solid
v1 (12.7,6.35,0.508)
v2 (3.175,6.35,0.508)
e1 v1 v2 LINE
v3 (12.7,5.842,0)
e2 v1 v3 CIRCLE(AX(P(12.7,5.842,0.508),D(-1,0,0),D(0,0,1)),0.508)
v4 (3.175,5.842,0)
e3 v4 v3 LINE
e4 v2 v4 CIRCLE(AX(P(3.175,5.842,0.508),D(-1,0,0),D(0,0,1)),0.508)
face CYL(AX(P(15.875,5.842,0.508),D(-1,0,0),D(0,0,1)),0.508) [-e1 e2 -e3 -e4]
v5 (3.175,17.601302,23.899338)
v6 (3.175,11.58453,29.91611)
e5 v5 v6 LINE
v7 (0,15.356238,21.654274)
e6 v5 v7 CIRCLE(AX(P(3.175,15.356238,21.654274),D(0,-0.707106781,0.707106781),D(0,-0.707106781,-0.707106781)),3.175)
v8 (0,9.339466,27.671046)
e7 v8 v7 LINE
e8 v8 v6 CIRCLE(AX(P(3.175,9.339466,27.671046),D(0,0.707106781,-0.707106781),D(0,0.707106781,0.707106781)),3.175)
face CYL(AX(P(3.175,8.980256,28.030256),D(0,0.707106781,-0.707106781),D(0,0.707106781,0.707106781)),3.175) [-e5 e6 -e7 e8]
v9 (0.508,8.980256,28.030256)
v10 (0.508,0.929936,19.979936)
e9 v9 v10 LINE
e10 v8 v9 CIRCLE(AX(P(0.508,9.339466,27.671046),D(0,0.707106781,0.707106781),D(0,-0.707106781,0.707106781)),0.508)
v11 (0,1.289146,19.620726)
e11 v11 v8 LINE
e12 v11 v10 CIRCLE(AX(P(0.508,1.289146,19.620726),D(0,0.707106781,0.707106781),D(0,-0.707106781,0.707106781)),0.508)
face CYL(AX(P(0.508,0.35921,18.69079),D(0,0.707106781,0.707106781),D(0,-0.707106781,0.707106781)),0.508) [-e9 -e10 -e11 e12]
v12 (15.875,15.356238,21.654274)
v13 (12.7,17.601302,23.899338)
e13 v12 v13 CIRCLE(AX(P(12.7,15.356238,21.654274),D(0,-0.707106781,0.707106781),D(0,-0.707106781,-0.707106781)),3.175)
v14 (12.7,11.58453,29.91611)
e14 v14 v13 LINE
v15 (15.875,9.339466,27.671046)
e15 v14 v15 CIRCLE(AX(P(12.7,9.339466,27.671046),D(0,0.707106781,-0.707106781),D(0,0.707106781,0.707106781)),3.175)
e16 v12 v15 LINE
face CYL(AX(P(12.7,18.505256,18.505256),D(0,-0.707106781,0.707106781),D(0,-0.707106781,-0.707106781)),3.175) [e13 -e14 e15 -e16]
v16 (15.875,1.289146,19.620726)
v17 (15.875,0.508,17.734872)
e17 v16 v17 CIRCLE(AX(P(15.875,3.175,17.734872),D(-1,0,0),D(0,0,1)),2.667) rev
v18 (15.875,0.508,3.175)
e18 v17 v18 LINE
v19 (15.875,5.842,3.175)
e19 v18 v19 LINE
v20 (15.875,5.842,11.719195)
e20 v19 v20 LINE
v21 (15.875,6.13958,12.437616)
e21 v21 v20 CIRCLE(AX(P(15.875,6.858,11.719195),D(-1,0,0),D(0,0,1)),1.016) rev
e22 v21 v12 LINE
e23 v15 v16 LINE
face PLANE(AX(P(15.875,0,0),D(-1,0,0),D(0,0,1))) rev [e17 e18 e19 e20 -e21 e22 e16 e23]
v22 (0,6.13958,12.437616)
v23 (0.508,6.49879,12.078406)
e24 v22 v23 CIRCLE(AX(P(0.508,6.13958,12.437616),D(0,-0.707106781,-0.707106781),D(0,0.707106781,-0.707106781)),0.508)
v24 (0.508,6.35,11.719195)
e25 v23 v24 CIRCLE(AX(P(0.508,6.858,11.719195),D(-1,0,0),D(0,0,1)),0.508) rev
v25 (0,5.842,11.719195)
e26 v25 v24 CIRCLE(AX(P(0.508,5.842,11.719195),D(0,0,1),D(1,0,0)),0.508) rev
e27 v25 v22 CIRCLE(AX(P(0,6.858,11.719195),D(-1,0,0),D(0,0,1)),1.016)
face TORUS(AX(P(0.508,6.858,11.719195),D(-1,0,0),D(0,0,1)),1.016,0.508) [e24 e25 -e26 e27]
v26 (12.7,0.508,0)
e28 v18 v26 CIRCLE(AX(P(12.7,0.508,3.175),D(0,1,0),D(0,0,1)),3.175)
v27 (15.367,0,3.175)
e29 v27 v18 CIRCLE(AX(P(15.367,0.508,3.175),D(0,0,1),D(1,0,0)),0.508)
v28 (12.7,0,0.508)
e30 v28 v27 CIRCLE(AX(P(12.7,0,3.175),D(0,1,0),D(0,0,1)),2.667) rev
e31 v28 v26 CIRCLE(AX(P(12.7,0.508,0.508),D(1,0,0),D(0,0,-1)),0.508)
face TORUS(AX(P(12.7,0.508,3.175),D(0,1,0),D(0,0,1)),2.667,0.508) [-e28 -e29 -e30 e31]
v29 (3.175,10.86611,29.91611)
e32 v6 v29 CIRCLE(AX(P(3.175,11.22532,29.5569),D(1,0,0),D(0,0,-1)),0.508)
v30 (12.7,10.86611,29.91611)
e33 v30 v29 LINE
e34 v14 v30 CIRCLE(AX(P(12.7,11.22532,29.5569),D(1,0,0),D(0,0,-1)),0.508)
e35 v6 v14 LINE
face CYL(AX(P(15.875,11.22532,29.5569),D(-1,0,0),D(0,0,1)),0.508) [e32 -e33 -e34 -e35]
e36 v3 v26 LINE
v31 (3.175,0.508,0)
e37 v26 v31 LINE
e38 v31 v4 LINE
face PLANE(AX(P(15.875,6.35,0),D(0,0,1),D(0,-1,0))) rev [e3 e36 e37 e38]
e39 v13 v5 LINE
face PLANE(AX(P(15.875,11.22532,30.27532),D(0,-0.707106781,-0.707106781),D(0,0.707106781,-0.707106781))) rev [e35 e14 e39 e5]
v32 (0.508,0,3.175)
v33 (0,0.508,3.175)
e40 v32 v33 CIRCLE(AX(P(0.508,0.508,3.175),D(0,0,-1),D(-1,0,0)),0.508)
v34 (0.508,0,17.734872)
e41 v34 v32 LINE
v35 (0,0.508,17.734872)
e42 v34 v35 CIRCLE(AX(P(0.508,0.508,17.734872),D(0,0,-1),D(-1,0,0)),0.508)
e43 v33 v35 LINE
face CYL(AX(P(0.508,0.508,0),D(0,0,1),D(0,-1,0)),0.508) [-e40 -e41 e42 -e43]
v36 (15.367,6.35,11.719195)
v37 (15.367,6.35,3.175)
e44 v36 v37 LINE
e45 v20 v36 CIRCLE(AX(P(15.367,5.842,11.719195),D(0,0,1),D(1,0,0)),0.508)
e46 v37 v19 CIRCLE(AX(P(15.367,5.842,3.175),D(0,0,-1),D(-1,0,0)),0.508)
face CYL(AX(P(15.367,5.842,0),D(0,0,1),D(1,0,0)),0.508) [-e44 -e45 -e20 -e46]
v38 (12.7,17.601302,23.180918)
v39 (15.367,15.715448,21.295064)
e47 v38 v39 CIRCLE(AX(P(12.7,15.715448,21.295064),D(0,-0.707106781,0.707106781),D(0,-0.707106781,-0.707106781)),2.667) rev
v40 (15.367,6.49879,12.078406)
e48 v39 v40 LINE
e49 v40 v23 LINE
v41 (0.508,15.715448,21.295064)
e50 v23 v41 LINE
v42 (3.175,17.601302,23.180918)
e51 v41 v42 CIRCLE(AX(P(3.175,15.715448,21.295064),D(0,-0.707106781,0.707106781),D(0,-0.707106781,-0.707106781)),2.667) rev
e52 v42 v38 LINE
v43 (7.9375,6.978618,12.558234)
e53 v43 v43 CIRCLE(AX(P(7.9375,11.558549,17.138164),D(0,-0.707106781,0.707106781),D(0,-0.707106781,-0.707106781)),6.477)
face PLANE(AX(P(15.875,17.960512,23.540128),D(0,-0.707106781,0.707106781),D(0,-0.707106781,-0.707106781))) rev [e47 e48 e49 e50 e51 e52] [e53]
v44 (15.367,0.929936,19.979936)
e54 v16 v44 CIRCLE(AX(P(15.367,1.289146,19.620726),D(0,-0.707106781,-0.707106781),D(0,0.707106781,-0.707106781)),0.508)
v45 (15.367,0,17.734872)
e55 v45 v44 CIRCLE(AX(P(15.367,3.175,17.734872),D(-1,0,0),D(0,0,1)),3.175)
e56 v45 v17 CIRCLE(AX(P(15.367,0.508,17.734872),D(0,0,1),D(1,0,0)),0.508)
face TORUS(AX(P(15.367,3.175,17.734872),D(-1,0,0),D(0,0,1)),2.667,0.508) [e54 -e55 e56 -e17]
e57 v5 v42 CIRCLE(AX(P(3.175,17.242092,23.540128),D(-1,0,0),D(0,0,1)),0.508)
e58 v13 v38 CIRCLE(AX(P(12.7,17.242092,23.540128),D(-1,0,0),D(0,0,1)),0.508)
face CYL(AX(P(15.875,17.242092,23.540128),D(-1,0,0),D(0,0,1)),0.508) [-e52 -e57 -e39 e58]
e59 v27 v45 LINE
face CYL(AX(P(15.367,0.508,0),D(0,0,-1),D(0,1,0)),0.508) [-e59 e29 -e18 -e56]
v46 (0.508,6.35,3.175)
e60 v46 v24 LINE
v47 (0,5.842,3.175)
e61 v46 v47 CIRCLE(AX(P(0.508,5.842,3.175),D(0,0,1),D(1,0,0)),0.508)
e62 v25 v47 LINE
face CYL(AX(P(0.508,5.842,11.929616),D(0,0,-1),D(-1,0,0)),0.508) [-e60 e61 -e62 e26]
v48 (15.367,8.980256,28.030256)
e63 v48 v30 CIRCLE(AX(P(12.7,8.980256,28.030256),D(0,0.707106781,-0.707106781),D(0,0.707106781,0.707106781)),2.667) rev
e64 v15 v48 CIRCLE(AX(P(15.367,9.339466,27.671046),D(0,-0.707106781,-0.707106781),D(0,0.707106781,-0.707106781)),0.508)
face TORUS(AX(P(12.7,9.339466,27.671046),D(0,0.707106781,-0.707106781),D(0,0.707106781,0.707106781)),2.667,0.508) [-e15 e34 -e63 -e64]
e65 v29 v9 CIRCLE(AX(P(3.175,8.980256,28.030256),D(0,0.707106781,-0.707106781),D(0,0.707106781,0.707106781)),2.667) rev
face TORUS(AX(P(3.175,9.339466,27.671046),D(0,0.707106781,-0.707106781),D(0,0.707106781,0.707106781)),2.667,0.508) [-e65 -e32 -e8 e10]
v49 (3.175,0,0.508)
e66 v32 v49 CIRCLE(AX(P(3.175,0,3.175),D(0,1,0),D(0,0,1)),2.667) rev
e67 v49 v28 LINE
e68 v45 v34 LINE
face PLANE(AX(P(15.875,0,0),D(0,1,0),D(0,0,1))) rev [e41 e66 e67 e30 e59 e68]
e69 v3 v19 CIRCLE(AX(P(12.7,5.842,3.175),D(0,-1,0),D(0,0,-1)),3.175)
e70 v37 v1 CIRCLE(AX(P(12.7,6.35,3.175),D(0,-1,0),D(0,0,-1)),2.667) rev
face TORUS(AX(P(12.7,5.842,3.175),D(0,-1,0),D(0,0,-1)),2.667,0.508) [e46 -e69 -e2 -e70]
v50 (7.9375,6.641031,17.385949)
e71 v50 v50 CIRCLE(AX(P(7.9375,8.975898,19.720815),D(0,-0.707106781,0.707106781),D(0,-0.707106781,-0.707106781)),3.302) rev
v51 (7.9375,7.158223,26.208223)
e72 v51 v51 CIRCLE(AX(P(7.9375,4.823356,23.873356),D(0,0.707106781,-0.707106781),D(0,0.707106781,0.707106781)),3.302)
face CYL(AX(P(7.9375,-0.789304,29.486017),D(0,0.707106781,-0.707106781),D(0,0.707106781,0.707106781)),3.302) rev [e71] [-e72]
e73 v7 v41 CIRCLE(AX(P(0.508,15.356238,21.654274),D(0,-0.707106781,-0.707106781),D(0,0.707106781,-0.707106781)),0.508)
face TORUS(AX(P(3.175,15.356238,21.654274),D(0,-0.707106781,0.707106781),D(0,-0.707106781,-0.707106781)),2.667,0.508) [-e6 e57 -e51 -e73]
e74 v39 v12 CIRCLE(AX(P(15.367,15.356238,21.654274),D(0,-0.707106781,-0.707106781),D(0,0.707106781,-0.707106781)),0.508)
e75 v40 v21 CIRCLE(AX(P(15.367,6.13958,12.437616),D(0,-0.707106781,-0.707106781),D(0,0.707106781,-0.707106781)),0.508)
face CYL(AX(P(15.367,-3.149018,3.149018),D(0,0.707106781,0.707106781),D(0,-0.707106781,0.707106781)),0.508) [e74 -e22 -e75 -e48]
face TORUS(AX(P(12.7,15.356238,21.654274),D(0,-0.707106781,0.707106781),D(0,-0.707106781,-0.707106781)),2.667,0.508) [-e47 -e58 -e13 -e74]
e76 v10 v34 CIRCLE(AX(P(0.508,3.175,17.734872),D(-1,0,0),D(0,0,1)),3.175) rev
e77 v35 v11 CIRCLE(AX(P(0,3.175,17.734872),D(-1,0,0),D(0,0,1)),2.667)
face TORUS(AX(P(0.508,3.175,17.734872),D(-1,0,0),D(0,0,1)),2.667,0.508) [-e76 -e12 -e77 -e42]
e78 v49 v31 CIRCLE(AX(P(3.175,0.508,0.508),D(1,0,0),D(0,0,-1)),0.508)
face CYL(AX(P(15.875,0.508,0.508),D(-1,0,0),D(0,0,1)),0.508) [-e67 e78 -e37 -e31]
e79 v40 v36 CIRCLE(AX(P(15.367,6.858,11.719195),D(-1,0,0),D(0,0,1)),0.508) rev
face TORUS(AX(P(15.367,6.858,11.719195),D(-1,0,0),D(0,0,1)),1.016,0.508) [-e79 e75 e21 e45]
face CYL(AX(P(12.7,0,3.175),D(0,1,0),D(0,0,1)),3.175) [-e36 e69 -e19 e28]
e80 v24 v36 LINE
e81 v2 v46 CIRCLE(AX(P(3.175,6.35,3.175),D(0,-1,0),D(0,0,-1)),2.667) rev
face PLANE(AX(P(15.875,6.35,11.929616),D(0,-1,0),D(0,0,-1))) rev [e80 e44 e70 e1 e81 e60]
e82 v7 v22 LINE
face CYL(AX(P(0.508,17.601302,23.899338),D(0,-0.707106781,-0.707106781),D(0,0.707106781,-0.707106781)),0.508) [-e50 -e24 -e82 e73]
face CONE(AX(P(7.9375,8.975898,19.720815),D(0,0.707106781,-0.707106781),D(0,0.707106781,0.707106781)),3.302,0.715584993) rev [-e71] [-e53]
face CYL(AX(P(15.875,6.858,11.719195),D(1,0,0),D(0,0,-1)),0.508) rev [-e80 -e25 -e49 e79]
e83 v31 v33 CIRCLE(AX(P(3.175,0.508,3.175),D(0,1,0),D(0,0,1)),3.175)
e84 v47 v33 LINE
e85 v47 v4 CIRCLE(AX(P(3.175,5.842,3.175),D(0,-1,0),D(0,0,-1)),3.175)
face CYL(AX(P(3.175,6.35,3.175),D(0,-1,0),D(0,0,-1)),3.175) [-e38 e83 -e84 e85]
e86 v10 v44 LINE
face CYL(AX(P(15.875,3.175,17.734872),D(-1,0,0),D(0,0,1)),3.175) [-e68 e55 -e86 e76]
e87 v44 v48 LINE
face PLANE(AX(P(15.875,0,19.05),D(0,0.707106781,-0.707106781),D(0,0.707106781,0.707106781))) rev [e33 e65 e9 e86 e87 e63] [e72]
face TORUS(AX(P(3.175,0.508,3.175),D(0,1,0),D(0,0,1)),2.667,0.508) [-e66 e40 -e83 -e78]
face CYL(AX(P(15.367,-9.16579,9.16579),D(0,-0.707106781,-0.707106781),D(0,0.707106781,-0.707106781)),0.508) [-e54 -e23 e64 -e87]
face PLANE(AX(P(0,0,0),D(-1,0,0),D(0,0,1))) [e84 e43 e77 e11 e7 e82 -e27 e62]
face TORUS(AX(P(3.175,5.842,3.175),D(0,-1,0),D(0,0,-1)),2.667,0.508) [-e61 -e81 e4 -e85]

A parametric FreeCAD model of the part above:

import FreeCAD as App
import Part
import Sketcher

V = App.Vector
Q = App.Units.Quantity


def edges_at(feature, points):
    """Names of the edges that pass closest to the given points."""
    edges = feature.Shape.Edges
    near = lambda p: min(range(len(edges)), key=lambda i: edges[i].distToShape(Part.Vertex(*p))[0])
    return sorted({f"Edge{near(p) + 1}" for p in points})

doc = App.newDocument("Part")
body = doc.addObject("PartDesign::Body", "Body")

# Sketch on YZ plane
sketch1 = body.newObject("Sketcher::SketchObject", "Sketch")
sketch1.AttachmentSupport = (doc.getObject("YZ_Plane"), [""])
sketch1.MapMode = "FlatFace"
sketch1.addGeometry([
    Part.LineSegment(V(0, 19, 0), V(0, 0, 0)),  # 0
    Part.LineSegment(V(0, 0, 0), V(6, 0, 0)),  # 1
    Part.LineSegment(V(6, 0, 0), V(6, 12, 0)),  # 2
    Part.LineSegment(V(6, 12, 0), V(18, 24, 0)),  # 3
    Part.LineSegment(V(18, 24, 0), V(11, 30, 0)),  # 4
    Part.LineSegment(V(11, 30, 0), V(0, 19, 0)),  # 5
], False)
sketch1.addConstraint([
    Sketcher.Constraint("Coincident", 0, 2, 1, 1),
    Sketcher.Constraint("Coincident", 1, 2, 2, 1),
    Sketcher.Constraint("Coincident", 2, 2, 3, 1),
    Sketcher.Constraint("Coincident", 3, 2, 4, 1),
    Sketcher.Constraint("Coincident", 4, 2, 5, 1),
    Sketcher.Constraint("Coincident", 5, 2, 0, 1),
    Sketcher.Constraint("Vertical", 0),
    Sketcher.Constraint("Horizontal", 1),
    Sketcher.Constraint("Vertical", 2),
    Sketcher.Constraint("Coincident", 0, 2, -1, 1),
    Sketcher.Constraint("Perpendicular", 3, 4),
    Sketcher.Constraint("Perpendicular", 4, 5),
    Sketcher.Constraint("Angle", 3, Q("45 deg")),
    Sketcher.Constraint("DistanceX", 1, 1, 1, 2, Q("0.25 in")),
    Sketcher.Constraint("DistanceY", 0, 2, 0, 1, Q("0.75 in")),
    Sketcher.Constraint("Distance", 4, Q("0.375 in")),
    Sketcher.Constraint("Distance", 5, Q("0.625 in")),
])
pad1 = body.newObject("PartDesign::Pad", "Pad")
pad1.Profile = sketch1
pad1.Length = Q("0.625 in")

# Sketch on an angled plane
sketch2 = body.newObject("Sketcher::SketchObject", "Sketch001")
sketch2.Placement = App.Placement(V(0, -2.789808, 2.789808), App.Rotation(V(1, 0, 0), V(0, -0.707106781, -0.707106781), V(0, 0.707106781, -0.707106781), "ZXY"))
sketch2.addGeometry(Part.Circle(V(7.9, -20.3, 0), V(0, 0, 1), 3.3), False)
sketch2.addConstraint([
    Sketcher.Constraint("Diameter", 0, Q("0.26 in")),
    Sketcher.Constraint("DistanceX", -1, 1, 0, 3, Q("0.3125 in")),
    Sketcher.Constraint("DistanceY", 0, 3, -1, 1, 20.29164),
])
pocket1 = body.newObject("PartDesign::Pocket", "Pocket")
pocket1.Profile = sketch2
pocket1.Type = "ThroughAll"
doc.recompute()

chamfer = body.newObject("PartDesign::Chamfer", "Chamfer")
chamfer.Base = (pocket1, edges_at(pocket1, [(7.938, 9.224, 14.803)]))
chamfer.ChamferType = "Two distances"
chamfer.Size = Q("0.125 in")
chamfer.Size2 = 3.65242
chamfer.FlipDirection = True
doc.recompute()

fillet = body.newObject("PartDesign::Fillet", "Fillet")
fillet.Base = (chamfer, edges_at(chamfer, [
    (7.938, 0, 19.05),
    (15.875, 14.593, 26.908),
    (15.875, 3.175, 0),
    (0, 14.593, 26.908),
    (0, 3.175, 0),
]))
fillet.Radius = Q("0.125 in")
doc.recompute()

fillet2 = body.newObject("PartDesign::Fillet", "Fillet001")
fillet2.Base = (fillet, edges_at(fillet, [
    (7.938, 6.35, 11.93),
    (15.875, 11.033, 16.612),
    (7.938, 6.35, 0),
    (7.938, 0, 0),
    (0, 6.35, 7.552),
    (15.875, 6.35, 7.552),
    (14.945, 6.35, 0.93),
    (0.93, 6.35, 0.93),
    (0, 0, 10.455),
    (0, 4.955, 24.005),
    (0, 0.242, 18.95),
    (15.875, 0, 10.455),
    (14.945, 0, 0.93),
    (0.93, 0, 0.93),
    (15.875, 4.955, 24.005),
    (15.875, 0.242, 18.95),
    (7.938, 11.225, 30.275),
    (7.938, 17.961, 23.54),
    (14.945, 10.568, 29.618),
    (0.93, 10.568, 29.618),
    (14.945, 17.303, 22.883),
    (0.93, 17.303, 22.883),
    (0, 11.033, 16.612),
]))
fillet2.Radius = Q("0.02 in")

doc.recompute()
